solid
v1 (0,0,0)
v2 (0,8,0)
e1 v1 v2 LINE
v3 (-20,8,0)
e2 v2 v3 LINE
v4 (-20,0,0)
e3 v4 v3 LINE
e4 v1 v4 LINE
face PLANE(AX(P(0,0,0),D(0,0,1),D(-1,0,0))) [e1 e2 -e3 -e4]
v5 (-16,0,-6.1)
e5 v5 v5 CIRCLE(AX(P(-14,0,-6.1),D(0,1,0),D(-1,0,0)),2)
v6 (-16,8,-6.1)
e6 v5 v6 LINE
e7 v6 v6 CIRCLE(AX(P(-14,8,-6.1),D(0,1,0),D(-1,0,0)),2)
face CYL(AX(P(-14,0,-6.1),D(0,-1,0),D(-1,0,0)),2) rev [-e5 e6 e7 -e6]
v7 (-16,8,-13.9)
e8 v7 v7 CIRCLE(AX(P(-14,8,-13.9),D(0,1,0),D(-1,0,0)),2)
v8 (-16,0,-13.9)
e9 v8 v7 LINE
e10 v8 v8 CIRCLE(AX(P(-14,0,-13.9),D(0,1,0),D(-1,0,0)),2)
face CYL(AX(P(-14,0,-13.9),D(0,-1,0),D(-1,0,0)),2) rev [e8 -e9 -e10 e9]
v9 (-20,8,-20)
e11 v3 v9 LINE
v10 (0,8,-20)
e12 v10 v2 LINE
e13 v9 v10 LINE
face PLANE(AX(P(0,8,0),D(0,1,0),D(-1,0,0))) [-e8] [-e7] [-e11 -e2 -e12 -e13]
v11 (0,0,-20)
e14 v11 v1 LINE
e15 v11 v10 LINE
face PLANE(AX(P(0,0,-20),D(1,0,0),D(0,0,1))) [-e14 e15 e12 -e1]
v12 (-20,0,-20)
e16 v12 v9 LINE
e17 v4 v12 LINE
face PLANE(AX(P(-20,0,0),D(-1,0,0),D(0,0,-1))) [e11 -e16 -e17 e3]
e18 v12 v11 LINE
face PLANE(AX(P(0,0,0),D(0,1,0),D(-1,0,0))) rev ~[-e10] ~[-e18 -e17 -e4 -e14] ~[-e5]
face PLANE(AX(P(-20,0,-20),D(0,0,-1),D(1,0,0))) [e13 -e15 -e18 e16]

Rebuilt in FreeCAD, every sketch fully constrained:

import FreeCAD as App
import Part
import Sketcher

doc = App.newDocument("Part")
body = doc.addObject("PartDesign::Body", "Body")

sketch1 = body.newObject("Sketcher::SketchObject", "Sketch")
sketch1.AttachmentSupport = (doc.getObject("XZ_Plane"), [""])
sketch1.MapMode = "FlatFace"
sketch1.addGeometry(Part.LineSegment(App.Vector(-20, 0, 0), App.Vector(0, 0, 0)), False)
sketch1.addGeometry(Part.LineSegment(App.Vector(0, 0, 0), App.Vector(0, -20, 0)), False)
sketch1.addGeometry(Part.LineSegment(App.Vector(0, -20, 0), App.Vector(-20, -20, 0)), False)
sketch1.addGeometry(Part.LineSegment(App.Vector(-20, -20, 0), App.Vector(-20, 0, 0)), False)
sketch1.addGeometry(Part.Circle(App.Vector(-14, -13.9, 0), App.Vector(0, 0, 1), 2), False)
sketch1.addGeometry(Part.Circle(App.Vector(-14, -6.1, 0), App.Vector(0, 0, 1), 2), False)
sketch1.addConstraint(Sketcher.Constraint("Coincident", 0, 2, 1, 1))
sketch1.addConstraint(Sketcher.Constraint("Coincident", 1, 2, 2, 1))
sketch1.addConstraint(Sketcher.Constraint("Coincident", 2, 2, 3, 1))
sketch1.addConstraint(Sketcher.Constraint("Coincident", 3, 2, 0, 1))
sketch1.addConstraint(Sketcher.Constraint("Horizontal", 0))
sketch1.addConstraint(Sketcher.Constraint("Vertical", 1))
sketch1.addConstraint(Sketcher.Constraint("Horizontal", 2))
sketch1.addConstraint(Sketcher.Constraint("Vertical", 3))
sketch1.addConstraint(Sketcher.Constraint("Coincident", 0, 2, -1, 1))
sketch1.addConstraint(Sketcher.Constraint("Equal", 4, 5))
sketch1.addConstraint(Sketcher.Constraint("Vertical", 4, 3, 5, 3))
sketch1.addConstraint(Sketcher.Constraint("Equal", 2, 1))
sketch1.addConstraint(Sketcher.Constraint("Diameter", 4, 4.0))
sketch1.addConstraint(Sketcher.Constraint("DistanceX", 0, 1, 0, 2, 20.0))
sketch1.addConstraint(Sketcher.Constraint("DistanceX", 2, 2, 4, 3, 6.0))
sketch1.addConstraint(Sketcher.Constraint("DistanceY", 5, 3, -1, 1, 6.1))
sketch1.addConstraint(Sketcher.Constraint("DistanceY", 4, 3, 5, 3, 7.8))
pad1 = body.newObject("PartDesign::Pad", "Pad")
pad1.Profile = sketch1
pad1.Length = 8
pad1.Reversed = True

doc.recompute()
